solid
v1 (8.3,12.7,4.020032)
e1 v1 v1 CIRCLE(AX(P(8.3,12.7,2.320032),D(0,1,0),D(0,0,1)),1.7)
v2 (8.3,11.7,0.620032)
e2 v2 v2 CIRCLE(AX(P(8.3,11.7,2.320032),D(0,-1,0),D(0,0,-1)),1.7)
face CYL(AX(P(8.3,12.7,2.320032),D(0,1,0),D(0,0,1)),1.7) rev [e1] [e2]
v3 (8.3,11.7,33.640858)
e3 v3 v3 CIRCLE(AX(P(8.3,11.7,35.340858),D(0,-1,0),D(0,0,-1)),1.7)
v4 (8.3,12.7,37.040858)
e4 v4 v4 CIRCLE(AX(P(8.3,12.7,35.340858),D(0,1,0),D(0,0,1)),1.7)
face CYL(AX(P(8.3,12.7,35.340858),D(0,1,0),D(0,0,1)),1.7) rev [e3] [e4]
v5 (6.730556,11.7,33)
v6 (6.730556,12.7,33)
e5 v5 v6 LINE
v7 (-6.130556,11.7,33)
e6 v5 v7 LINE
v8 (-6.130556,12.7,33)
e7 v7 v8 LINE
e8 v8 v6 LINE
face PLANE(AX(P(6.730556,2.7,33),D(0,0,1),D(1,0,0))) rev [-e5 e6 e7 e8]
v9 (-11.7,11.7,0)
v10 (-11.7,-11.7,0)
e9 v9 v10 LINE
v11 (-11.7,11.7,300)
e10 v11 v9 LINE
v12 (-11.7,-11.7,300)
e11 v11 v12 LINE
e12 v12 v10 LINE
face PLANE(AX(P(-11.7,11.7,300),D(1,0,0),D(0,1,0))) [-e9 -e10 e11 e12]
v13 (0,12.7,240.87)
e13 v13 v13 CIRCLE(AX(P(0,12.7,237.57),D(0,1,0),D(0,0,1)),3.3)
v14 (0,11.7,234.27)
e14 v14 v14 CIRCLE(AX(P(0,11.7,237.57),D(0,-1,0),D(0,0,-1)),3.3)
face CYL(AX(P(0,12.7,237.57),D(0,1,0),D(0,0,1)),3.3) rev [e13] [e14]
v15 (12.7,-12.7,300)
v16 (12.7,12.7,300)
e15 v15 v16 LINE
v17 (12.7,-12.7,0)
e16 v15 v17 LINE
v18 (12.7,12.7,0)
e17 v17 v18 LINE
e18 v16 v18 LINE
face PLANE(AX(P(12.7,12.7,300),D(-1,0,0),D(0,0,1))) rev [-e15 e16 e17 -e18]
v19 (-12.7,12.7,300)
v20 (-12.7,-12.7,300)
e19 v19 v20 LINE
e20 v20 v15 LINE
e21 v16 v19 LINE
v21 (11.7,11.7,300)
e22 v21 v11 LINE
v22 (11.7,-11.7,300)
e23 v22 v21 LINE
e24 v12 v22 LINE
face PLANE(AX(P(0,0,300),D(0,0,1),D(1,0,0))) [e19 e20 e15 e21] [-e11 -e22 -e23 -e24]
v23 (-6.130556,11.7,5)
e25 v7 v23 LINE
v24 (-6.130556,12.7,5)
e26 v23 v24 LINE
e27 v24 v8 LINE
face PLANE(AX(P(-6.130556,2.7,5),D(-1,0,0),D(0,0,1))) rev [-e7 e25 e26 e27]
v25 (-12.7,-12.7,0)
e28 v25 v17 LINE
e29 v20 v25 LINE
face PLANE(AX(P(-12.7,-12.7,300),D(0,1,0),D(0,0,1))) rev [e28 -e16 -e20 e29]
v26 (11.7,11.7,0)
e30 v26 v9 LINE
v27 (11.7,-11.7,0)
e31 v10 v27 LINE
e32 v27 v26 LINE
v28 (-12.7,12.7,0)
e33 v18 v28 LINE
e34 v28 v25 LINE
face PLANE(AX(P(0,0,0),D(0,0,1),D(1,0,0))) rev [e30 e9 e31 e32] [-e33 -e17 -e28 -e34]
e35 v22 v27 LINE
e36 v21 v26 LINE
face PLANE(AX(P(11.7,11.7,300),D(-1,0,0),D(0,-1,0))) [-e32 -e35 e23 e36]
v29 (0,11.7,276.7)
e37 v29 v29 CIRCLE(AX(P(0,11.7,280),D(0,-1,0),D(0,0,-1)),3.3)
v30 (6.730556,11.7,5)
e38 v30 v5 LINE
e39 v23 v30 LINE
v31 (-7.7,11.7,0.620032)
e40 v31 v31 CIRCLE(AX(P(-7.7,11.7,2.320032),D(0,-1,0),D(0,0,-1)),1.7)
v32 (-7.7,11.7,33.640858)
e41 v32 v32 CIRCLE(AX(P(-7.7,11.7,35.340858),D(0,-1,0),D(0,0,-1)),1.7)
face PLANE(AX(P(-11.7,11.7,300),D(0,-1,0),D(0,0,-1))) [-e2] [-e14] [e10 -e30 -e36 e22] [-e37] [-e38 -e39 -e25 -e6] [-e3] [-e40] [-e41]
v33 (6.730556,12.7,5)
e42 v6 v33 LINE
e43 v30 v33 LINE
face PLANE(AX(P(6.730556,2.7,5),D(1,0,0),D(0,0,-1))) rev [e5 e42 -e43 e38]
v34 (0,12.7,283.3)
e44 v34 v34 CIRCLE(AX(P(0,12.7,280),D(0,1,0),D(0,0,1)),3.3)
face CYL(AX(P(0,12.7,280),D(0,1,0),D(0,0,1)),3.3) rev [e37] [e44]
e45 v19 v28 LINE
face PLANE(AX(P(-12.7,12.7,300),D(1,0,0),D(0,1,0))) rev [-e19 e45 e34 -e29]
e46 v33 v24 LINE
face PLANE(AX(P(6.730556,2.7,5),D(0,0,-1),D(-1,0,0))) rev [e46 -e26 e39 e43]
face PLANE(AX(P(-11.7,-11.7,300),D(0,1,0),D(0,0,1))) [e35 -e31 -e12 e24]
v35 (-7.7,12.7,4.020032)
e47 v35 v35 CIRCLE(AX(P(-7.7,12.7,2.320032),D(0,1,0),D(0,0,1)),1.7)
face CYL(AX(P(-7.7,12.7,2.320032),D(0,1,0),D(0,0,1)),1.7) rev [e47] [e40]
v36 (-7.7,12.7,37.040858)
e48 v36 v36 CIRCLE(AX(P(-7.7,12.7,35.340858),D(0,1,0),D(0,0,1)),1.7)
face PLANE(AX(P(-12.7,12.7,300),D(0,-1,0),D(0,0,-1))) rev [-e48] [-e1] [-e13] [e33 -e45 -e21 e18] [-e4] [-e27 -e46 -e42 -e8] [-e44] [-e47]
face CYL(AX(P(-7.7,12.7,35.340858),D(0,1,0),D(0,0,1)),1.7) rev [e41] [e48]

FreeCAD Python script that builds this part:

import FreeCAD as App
import Part
import Sketcher
from FreeCAD import Vector
Q = App.Units.Quantity

doc = App.newDocument("Part")
body = doc.addObject("PartDesign::Body", "Body")

sketch1 = body.newObject("Sketcher::SketchObject", "Sketch")
sketch1.AttachmentSupport = (doc.getObject("XY_Plane"), [""])
sketch1.MapMode = "FlatFace"
sketch1.addGeometry(Part.LineSegment(Vector(-13, 13, 0), Vector(-13, -13, 0)), False)
sketch1.addGeometry(Part.LineSegment(Vector(-13, -13, 0), Vector(13, -13, 0)), False)
sketch1.addGeometry(Part.LineSegment(Vector(13, -13, 0), Vector(13, 13, 0)), False)
sketch1.addGeometry(Part.LineSegment(Vector(13, 13, 0), Vector(-13, 13, 0)), False)
sketch1.addGeometry(Part.LineSegment(Vector(12, -12, 0), Vector(-12, -12, 0)), False)
sketch1.addGeometry(Part.LineSegment(Vector(-12, -12, 0), Vector(-12, 12, 0)), False)
sketch1.addGeometry(Part.LineSegment(Vector(-12, 12, 0), Vector(12, 12, 0)), False)
sketch1.addGeometry(Part.LineSegment(Vector(12, 12, 0), Vector(12, -12, 0)), False)
sketch1.addConstraint(Sketcher.Constraint("Coincident", 0, 2, 1, 1))
sketch1.addConstraint(Sketcher.Constraint("Coincident", 1, 2, 2, 1))
sketch1.addConstraint(Sketcher.Constraint("Coincident", 2, 2, 3, 1))
sketch1.addConstraint(Sketcher.Constraint("Coincident", 3, 2, 0, 1))
sketch1.addConstraint(Sketcher.Constraint("Coincident", 4, 2, 5, 1))
sketch1.addConstraint(Sketcher.Constraint("Coincident", 5, 2, 6, 1))
sketch1.addConstraint(Sketcher.Constraint("Coincident", 6, 2, 7, 1))
sketch1.addConstraint(Sketcher.Constraint("Coincident", 7, 2, 4, 1))
sketch1.addConstraint(Sketcher.Constraint("Vertical", 0))
sketch1.addConstraint(Sketcher.Constraint("Horizontal", 1))
sketch1.addConstraint(Sketcher.Constraint("Vertical", 2))
sketch1.addConstraint(Sketcher.Constraint("Horizontal", 3))
sketch1.addConstraint(Sketcher.Constraint("Horizontal", 4))
sketch1.addConstraint(Sketcher.Constraint("Vertical", 5))
sketch1.addConstraint(Sketcher.Constraint("Horizontal", 6))
sketch1.addConstraint(Sketcher.Constraint("Vertical", 7))
sketch1.addConstraint(Sketcher.Constraint("Symmetric", 0, 2, 2, 2, -1, 1))
sketch1.addConstraint(Sketcher.Constraint("Symmetric", 4, 2, 6, 2, -1, 1))
sketch1.addConstraint(Sketcher.Constraint("Equal", 3, 0))
sketch1.addConstraint(Sketcher.Constraint("Equal", 6, 5))
sketch1.addConstraint(Sketcher.Constraint("DistanceX", 1, 1, 1, 2, Q("25.4 mm")))
sketch1.addConstraint(Sketcher.Constraint("DistanceX", 4, 2, 4, 1, Q("23.4 mm")))
pad1 = body.newObject("PartDesign::Pad", "Pad")
pad1.Profile = sketch1
pad1.Length = 300

sketch2 = body.newObject("Sketcher::SketchObject", "Sketch001")
sketch2.AttachmentSupport = (doc.getObject("XZ_Plane"), [""])
sketch2.MapMode = "FlatFace"
sketch2.AttachmentOffset = App.Placement(Vector(0, 0, -12.7), App.Rotation())
sketch2.addGeometry(Part.Circle(Vector(0, 280, 0), Vector(0, 0, 1), 3.3), False)
sketch2.addGeometry(Part.Circle(Vector(0, 237.6, 0), Vector(0, 0, 1), 3.3), False)
sketch2.addConstraint(Sketcher.Constraint("Equal", 0, 1))
sketch2.addConstraint(Sketcher.Constraint("PointOnObject", 0, 3, -2))
sketch2.addConstraint(Sketcher.Constraint("PointOnObject", 1, 3, -2))
sketch2.addConstraint(Sketcher.Constraint("Diameter", 0, Q("6.6 mm")))
sketch2.addConstraint(Sketcher.Constraint("DistanceY", -1, 1, 0, 3, Q("280 mm")))
sketch2.addConstraint(Sketcher.Constraint("DistanceY", -1, 1, 1, 3, Q("237.57 mm")))
doc.recompute()
hole = body.newObject("PartDesign::Hole", "Hole")
hole.Profile = sketch2
hole.ThreadType = "None"
hole.Diameter = 6.6
hole.DepthType = "Dimension"
hole.Depth = 10
hole.DrillPoint = "Angled"
hole.DrillPointAngle = 118
hole.Reversed = True

sketch3 = body.newObject("Sketcher::SketchObject", "Sketch002")
sketch3.AttachmentSupport = (doc.getObject("XZ_Plane"), [""])
sketch3.MapMode = "FlatFace"
sketch3.AttachmentOffset = App.Placement(Vector(0, 0, -12.7), App.Rotation())
sketch3.addGeometry(Part.LineSegment(Vector(-6, 5, 0), Vector(-6, 33, 0)), False)
sketch3.addGeometry(Part.LineSegment(Vector(-6, 33, 0), Vector(7, 33, 0)), False)
sketch3.addGeometry(Part.LineSegment(Vector(7, 33, 0), Vector(7, 5, 0)), False)
sketch3.addGeometry(Part.LineSegment(Vector(7, 5, 0), Vector(-6, 5, 0)), False)
sketch3.addConstraint(Sketcher.Constraint("Coincident", 0, 2, 1, 1))
sketch3.addConstraint(Sketcher.Constraint("Coincident", 1, 2, 2, 1))
sketch3.addConstraint(Sketcher.Constraint("Coincident", 2, 2, 3, 1))
sketch3.addConstraint(Sketcher.Constraint("Coincident", 3, 2, 0, 1))
sketch3.addConstraint(Sketcher.Constraint("Vertical", 0))
sketch3.addConstraint(Sketcher.Constraint("Horizontal", 1))
sketch3.addConstraint(Sketcher.Constraint("Vertical", 2))
sketch3.addConstraint(Sketcher.Constraint("Horizontal", 3))
sketch3.addConstraint(Sketcher.Constraint("DistanceY", 0, 1, 0, 2, Q("28 mm")))
sketch3.addConstraint(Sketcher.Constraint("DistanceY", -1, 1, 0, 2, Q("33 mm")))
sketch3.addConstraint(Sketcher.Constraint("DistanceX", 1, 1, 1, 2, Q("12.861113 mm")))
sketch3.addConstraint(Sketcher.Constraint("DistanceX", 0, 2, -1, 1, Q("6.130556 mm")))
pocket1 = body.newObject("PartDesign::Pocket", "Pocket")
pocket1.Profile = sketch3
pocket1.Length = 10
pocket1.Reversed = True

sketch4 = body.newObject("Sketcher::SketchObject", "Sketch003")
sketch4.AttachmentSupport = (doc.getObject("XZ_Plane"), [""])
sketch4.MapMode = "FlatFace"
sketch4.AttachmentOffset = App.Placement(Vector(0, 0, -12.7), App.Rotation())
sketch4.addGeometry(Part.Circle(Vector(8.3, 2.3, 0), Vector(0, 0, 1), 1.7), False)
sketch4.addGeometry(Part.Circle(Vector(-7.7, 2.3, 0), Vector(0, 0, 1), 1.7), False)
sketch4.addGeometry(Part.Circle(Vector(-7.7, 35.3, 0), Vector(0, 0, 1), 1.7), False)
sketch4.addGeometry(Part.Circle(Vector(8.3, 35.3, 0), Vector(0, 0, 1), 1.7), False)
sketch4.addConstraint(Sketcher.Constraint("Equal", 0, 1))
sketch4.addConstraint(Sketcher.Constraint("Equal", 1, 2))
sketch4.addConstraint(Sketcher.Constraint("Equal", 2, 3))
sketch4.addConstraint(Sketcher.Constraint("Horizontal", 0, 3, 1, 3))
sketch4.addConstraint(Sketcher.Constraint("Horizontal", 2, 3, 3, 3))
sketch4.addConstraint(Sketcher.Constraint("Vertical", 1, 3, 2, 3))
sketch4.addConstraint(Sketcher.Constraint("Vertical", 0, 3, 3, 3))
sketch4.addConstraint(Sketcher.Constraint("Diameter", 0, Q("3.4 mm")))
sketch4.addConstraint(Sketcher.Constraint("DistanceX", 1, 3, 0, 3, Q("16 mm")))
sketch4.addConstraint(Sketcher.Constraint("DistanceX", -1, 1, 0, 3, Q("8.3 mm")))
sketch4.addConstraint(Sketcher.Constraint("DistanceY", -1, 1, 0, 3, Q("2.320032 mm")))
sketch4.addConstraint(Sketcher.Constraint("DistanceY", -1, 1, 2, 3, Q("35.340858 mm")))
doc.recompute()
hole2 = body.newObject("PartDesign::Hole", "Hole001")
hole2.Profile = sketch4
hole2.ThreadType = "None"
hole2.Diameter = 3.4
hole2.DepthType = "Dimension"
hole2.Depth = 10
hole2.DrillPoint = "Angled"
hole2.DrillPointAngle = 118
hole2.Reversed = True

doc.recompute()
